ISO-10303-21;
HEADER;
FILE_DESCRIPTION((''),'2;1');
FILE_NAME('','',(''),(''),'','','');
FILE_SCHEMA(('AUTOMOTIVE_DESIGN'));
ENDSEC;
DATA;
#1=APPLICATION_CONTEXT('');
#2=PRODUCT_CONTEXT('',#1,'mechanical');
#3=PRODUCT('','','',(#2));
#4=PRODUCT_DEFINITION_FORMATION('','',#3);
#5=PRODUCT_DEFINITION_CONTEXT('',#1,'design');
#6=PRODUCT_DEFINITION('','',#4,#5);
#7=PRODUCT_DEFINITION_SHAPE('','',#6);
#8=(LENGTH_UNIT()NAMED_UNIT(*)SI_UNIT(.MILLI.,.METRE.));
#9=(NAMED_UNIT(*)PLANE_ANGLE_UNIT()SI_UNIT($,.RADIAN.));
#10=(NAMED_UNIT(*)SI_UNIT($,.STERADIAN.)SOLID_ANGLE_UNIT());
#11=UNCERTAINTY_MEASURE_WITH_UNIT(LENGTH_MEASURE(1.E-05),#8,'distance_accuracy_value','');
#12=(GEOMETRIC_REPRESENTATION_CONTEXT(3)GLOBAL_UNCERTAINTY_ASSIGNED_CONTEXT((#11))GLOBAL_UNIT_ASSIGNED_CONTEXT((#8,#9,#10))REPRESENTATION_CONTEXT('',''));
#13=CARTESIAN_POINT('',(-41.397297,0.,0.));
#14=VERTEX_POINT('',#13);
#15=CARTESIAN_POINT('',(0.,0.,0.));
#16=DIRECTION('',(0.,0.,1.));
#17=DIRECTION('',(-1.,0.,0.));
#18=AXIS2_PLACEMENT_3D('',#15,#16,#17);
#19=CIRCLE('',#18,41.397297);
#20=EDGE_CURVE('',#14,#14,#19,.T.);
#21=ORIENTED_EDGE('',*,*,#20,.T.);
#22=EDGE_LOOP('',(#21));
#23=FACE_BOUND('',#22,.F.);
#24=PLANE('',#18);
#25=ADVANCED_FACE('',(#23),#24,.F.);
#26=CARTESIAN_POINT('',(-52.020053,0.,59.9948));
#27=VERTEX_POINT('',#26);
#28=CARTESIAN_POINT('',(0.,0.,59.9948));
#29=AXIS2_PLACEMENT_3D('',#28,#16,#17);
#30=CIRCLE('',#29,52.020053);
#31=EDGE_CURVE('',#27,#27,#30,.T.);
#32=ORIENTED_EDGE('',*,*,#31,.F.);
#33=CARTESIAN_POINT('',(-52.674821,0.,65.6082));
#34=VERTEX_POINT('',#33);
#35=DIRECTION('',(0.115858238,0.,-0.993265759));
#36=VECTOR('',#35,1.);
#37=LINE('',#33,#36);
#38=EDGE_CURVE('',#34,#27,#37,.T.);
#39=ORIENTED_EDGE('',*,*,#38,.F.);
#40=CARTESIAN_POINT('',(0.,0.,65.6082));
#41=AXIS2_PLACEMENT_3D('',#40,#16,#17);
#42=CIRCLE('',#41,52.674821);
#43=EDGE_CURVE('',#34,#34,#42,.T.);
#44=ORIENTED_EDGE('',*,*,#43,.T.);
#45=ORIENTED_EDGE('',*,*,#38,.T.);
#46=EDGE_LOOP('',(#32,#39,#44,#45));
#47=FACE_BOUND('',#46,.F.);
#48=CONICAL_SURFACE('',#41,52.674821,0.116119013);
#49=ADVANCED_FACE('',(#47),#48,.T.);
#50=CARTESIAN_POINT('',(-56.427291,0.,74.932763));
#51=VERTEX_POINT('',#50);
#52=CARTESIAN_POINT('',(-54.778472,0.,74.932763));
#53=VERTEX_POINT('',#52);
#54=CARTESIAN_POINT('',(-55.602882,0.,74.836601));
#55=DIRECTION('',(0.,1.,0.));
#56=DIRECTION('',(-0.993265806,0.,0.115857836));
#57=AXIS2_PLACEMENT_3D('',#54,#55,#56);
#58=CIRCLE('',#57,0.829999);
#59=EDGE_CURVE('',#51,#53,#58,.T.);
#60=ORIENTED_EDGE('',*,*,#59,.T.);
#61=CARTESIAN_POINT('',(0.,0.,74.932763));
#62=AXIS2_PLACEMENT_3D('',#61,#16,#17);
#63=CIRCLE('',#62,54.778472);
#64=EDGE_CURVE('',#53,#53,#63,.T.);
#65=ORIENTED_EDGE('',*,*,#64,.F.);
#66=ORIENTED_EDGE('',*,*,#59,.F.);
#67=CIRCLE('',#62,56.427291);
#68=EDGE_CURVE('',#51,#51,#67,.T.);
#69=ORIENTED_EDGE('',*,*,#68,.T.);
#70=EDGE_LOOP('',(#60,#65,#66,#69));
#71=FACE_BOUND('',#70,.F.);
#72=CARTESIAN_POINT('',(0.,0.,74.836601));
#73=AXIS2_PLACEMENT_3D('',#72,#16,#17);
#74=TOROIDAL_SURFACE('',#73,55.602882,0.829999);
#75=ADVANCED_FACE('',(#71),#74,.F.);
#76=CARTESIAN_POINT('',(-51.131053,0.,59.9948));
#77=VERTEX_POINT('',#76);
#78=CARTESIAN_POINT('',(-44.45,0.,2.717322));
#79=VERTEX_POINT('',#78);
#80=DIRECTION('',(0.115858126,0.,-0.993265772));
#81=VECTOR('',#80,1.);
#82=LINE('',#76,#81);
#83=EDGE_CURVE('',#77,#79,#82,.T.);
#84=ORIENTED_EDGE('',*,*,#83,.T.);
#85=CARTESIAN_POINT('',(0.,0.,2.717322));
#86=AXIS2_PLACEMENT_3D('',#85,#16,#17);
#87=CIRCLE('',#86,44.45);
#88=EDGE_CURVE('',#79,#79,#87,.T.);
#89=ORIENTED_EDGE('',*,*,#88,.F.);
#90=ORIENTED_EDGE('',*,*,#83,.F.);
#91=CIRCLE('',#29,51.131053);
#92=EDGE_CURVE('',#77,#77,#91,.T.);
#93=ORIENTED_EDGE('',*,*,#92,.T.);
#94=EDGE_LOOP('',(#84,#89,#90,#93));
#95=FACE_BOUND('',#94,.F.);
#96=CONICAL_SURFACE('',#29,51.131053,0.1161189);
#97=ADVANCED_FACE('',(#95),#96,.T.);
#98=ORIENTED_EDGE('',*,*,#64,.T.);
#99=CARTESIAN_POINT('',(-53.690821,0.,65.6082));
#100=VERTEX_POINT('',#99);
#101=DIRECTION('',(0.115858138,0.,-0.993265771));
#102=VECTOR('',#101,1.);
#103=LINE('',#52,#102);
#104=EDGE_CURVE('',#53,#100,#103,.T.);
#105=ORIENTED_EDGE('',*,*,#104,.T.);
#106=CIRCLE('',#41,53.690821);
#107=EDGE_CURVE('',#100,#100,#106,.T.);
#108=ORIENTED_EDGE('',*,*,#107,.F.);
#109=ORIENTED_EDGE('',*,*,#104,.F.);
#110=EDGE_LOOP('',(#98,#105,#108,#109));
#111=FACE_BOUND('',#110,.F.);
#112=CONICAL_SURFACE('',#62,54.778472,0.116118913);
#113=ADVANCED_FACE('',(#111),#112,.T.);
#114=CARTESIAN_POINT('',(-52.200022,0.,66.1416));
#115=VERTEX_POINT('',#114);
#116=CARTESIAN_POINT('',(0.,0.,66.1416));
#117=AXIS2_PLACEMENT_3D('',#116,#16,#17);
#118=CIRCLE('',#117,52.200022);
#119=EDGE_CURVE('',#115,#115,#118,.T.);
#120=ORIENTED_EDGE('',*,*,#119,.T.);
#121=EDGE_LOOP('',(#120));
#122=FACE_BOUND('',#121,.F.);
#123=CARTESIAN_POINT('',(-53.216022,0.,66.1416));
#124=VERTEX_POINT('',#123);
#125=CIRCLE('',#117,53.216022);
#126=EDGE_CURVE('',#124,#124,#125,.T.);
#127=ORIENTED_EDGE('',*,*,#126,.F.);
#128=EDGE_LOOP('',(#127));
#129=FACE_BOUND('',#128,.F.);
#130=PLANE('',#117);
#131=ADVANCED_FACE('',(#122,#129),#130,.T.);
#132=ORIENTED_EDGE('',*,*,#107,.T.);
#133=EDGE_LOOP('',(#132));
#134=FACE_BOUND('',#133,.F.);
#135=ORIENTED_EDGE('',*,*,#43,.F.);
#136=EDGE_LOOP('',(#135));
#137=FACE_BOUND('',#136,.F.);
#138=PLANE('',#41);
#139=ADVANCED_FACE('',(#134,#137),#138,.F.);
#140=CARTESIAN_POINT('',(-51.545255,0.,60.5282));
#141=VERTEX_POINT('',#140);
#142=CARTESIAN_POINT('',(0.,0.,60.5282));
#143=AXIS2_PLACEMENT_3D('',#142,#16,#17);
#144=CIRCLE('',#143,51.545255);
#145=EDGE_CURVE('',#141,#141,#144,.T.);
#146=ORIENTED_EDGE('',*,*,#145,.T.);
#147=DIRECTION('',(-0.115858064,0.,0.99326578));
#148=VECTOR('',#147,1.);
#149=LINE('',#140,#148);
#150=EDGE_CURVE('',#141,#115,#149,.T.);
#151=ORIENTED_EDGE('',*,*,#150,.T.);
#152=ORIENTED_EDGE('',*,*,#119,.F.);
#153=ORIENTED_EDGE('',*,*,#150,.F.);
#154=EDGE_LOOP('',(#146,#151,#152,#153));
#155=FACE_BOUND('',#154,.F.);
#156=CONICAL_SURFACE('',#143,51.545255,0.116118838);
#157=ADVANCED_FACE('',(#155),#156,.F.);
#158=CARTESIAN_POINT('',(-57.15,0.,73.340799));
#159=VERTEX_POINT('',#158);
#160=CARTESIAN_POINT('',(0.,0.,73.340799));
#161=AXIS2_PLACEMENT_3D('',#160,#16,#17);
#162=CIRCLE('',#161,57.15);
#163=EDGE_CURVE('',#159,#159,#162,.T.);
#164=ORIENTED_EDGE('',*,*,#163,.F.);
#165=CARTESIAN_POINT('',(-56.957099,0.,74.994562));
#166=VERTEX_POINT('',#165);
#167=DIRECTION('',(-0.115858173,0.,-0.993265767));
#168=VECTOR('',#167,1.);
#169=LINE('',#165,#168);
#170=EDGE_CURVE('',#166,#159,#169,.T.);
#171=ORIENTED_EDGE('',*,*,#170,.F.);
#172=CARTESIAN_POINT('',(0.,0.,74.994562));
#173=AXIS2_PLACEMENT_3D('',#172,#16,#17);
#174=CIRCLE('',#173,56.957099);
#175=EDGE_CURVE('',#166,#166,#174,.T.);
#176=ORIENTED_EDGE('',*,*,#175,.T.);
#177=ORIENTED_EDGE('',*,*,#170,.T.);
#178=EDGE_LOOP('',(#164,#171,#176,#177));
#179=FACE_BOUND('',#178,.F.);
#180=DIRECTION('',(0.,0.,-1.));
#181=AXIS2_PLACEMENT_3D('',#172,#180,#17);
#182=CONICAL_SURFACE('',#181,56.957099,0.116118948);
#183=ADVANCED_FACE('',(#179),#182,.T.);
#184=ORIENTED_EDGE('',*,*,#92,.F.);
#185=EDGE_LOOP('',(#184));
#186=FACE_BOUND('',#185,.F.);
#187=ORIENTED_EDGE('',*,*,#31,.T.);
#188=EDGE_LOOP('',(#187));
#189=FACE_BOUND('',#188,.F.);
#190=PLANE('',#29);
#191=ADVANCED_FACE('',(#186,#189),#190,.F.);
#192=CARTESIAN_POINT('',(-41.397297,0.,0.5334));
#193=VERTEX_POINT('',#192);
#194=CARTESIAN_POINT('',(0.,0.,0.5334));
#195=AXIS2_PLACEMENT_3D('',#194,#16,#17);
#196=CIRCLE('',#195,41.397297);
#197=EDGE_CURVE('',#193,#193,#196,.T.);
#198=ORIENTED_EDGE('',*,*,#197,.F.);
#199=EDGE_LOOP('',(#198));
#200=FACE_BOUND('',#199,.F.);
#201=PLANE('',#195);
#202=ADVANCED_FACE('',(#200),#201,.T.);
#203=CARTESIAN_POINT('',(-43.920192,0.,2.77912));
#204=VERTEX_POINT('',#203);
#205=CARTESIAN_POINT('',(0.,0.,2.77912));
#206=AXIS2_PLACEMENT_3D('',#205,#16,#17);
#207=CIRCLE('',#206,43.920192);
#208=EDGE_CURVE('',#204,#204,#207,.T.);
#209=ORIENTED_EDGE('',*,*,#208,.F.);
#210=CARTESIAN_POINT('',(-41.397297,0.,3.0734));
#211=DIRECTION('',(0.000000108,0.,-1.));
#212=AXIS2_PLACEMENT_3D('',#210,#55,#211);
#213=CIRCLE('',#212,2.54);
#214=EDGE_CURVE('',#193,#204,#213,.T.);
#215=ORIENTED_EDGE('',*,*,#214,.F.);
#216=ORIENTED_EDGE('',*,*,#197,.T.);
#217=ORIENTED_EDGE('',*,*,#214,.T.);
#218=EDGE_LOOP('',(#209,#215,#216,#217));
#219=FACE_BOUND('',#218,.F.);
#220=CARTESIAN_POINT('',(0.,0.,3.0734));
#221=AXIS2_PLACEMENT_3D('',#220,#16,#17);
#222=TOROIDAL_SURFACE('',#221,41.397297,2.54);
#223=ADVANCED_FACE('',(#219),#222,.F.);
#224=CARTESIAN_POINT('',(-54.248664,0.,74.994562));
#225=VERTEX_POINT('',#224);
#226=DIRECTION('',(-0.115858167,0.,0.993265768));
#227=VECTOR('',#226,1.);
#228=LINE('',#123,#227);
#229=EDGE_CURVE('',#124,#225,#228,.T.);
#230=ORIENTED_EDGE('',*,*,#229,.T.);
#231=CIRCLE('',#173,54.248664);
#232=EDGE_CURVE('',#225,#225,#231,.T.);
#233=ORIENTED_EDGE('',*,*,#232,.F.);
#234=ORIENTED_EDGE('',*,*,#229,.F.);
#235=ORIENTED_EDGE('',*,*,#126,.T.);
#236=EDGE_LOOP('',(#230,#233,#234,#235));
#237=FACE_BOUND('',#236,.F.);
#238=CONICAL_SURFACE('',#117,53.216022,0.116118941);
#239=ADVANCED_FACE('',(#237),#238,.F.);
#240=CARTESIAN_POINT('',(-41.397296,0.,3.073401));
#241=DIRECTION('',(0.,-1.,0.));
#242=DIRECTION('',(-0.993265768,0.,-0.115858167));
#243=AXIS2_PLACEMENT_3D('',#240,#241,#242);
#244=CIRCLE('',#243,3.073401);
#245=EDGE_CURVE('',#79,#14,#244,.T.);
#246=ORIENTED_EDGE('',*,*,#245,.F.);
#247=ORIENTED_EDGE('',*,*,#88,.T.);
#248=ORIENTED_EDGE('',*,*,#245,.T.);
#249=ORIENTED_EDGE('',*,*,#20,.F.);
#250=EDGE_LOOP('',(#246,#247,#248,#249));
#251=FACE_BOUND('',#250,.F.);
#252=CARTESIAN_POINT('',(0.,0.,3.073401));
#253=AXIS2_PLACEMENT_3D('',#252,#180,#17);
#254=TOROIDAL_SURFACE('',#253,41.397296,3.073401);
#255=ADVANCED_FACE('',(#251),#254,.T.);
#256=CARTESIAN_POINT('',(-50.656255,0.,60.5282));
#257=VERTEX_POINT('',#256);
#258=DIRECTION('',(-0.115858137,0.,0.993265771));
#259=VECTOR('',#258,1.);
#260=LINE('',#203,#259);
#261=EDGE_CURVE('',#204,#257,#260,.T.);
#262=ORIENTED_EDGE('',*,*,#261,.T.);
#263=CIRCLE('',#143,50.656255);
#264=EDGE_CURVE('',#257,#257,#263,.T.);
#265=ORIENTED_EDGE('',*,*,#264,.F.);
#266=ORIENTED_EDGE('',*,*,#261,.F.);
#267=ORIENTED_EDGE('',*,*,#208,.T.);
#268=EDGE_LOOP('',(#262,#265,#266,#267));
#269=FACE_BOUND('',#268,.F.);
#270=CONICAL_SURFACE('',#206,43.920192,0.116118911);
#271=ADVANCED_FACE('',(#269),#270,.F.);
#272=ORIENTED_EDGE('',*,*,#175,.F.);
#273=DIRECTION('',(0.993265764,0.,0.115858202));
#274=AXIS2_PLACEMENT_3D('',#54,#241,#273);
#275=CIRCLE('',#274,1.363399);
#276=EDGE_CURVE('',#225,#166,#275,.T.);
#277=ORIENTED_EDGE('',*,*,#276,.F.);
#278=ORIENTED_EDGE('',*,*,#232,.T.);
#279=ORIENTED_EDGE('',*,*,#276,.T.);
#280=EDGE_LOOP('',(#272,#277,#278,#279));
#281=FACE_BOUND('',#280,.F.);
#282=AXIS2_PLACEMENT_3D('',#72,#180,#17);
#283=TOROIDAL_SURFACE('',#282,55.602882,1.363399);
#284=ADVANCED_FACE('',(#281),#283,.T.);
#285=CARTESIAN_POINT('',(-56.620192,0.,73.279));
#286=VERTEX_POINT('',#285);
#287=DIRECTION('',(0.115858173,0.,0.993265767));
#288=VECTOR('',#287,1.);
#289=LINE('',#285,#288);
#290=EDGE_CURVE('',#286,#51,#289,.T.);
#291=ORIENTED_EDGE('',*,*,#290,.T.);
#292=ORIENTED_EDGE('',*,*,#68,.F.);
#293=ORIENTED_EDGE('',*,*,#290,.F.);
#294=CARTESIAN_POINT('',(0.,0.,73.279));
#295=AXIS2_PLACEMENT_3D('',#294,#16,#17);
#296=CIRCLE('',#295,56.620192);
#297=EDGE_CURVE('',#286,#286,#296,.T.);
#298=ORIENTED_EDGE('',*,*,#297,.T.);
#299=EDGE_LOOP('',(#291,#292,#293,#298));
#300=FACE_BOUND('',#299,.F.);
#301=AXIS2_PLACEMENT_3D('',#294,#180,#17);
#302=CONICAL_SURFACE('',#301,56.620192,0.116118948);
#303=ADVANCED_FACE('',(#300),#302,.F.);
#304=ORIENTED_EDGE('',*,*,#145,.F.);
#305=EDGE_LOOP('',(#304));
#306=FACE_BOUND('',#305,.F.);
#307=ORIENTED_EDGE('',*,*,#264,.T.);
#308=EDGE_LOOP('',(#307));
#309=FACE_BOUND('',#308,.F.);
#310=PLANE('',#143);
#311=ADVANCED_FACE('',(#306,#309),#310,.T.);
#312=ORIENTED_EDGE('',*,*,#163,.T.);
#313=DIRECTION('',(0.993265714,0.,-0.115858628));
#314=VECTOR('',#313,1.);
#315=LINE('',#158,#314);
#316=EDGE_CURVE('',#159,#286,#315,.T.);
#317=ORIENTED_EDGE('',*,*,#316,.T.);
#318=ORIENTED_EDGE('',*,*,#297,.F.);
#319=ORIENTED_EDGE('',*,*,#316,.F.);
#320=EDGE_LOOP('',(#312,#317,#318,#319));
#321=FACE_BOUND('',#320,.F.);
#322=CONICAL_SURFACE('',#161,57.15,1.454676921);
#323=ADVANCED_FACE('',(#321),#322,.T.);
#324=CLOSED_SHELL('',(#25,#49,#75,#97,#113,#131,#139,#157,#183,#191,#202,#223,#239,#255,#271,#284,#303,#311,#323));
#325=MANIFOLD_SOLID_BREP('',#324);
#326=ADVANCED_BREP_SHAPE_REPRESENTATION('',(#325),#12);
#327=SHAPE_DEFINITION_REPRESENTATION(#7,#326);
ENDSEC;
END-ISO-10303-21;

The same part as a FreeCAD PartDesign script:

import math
import FreeCAD as App
import Part
import Sketcher

V = App.Vector
Q = App.Units.Quantity

doc = App.newDocument("Part")
params = doc.addObject("Spreadsheet::Sheet", "Params")
for row, (alias, value) in enumerate([
    ("sketch1_radius", "0.1 in"),
    ("sketch1_radius2", "0.121 in"),
    ("sketch1_width", "0.04 in"),
    ("sketch1_width2", "0.035 in"),
    ("revolution_angle", "360 deg"),
], start=1):
    params.set(f"A{row}", alias)
    params.set(f"B{row}", "=" + value)
    params.setAlias(f"B{row}", alias)

body = doc.addObject("PartDesign::Body", "Body")

sketch1 = doc.addObject("Sketcher::SketchObject", "Sketch")
body.addObject(sketch1)
sketch1.AttachmentSupport = (doc.XZ_Plane, [""])
sketch1.MapMode = "FlatFace"
sketch1.addGeometry(Part.LineSegment(V(-41.397297, 0, 0), V(0, 0, 0)), False)
sketch1.addGeometry(Part.LineSegment(V(0, 0, 0), V(0, 0.5334, 0)), False)
sketch1.addGeometry(Part.LineSegment(V(0, 0.5334, 0), V(-41.397297, 0.5334, 0)), False)
sketch1.addGeometry(Part.ArcOfCircle(Part.Circle(V(-41.397297, 3.0734, 0), V(0, 0, 1), 2.54), math.radians(-173.346876), math.radians(-89.999994)), False)
sketch1.addGeometry(Part.LineSegment(V(-43.920192, 2.77912, 0), V(-50.656255, 60.5282, 0)), False)
sketch1.addGeometry(Part.LineSegment(V(-50.656255, 60.5282, 0), V(-51.545255, 60.5282, 0)), False)
sketch1.addGeometry(Part.LineSegment(V(-51.545255, 60.5282, 0), V(-52.200022, 66.1416, 0)), False)
sketch1.addGeometry(Part.LineSegment(V(-52.200022, 66.1416, 0), V(-53.216022, 66.1416, 0)), False)
sketch1.addGeometry(Part.LineSegment(V(-53.216022, 66.1416, 0), V(-54.248664, 74.994562, 0)), False)
sketch1.addGeometry(Part.ArcOfCircle(Part.Circle(V(-55.602882, 74.836601, 0), V(0, 0, 1), 1.363399), math.radians(6.653127), math.radians(173.346873)), False)
sketch1.addGeometry(Part.LineSegment(V(-56.957099, 74.994562, 0), V(-57.15, 73.340799, 0)), False)
sketch1.addGeometry(Part.LineSegment(V(-57.15, 73.340799, 0), V(-56.620192, 73.279, 0)), False)
sketch1.addGeometry(Part.LineSegment(V(-56.620192, 73.279, 0), V(-56.427291, 74.932763, 0)), False)
sketch1.addGeometry(Part.ArcOfCircle(Part.Circle(V(-55.602882, 74.836601, 0), V(0, 0, 1), 0.829999), math.radians(6.653106), math.radians(173.346894)), False)
sketch1.addGeometry(Part.LineSegment(V(-54.778472, 74.932763, 0), V(-53.690821, 65.6082, 0)), False)
sketch1.addGeometry(Part.LineSegment(V(-53.690821, 65.6082, 0), V(-52.674821, 65.6082, 0)), False)
sketch1.addGeometry(Part.LineSegment(V(-52.674821, 65.6082, 0), V(-52.020053, 59.9948, 0)), False)
sketch1.addGeometry(Part.LineSegment(V(-52.020053, 59.9948, 0), V(-51.131053, 59.9948, 0)), False)
sketch1.addGeometry(Part.LineSegment(V(-51.131053, 59.9948, 0), V(-44.45, 2.717322, 0)), False)
sketch1.addGeometry(Part.ArcOfCircle(Part.Circle(V(-41.397296, 3.073401, 0), V(0, 0, 1), 3.073401), math.radians(-173.346875), math.radians(-90.00001)), False)
sketch1.addConstraint(Sketcher.Constraint("Coincident", 0, 2, 1, 1))
sketch1.addConstraint(Sketcher.Constraint("Coincident", 1, 2, 2, 1))
sketch1.addConstraint(Sketcher.Constraint("Tangent", 2, 2, 3, 2))
sketch1.addConstraint(Sketcher.Constraint("Tangent", 3, 1, 4, 1))
sketch1.addConstraint(Sketcher.Constraint("Coincident", 4, 2, 5, 1))
sketch1.addConstraint(Sketcher.Constraint("Coincident", 5, 2, 6, 1))
sketch1.addConstraint(Sketcher.Constraint("Coincident", 6, 2, 7, 1))
sketch1.addConstraint(Sketcher.Constraint("Coincident", 7, 2, 8, 1))
sketch1.addConstraint(Sketcher.Constraint("Tangent", 8, 2, 9, 1))
sketch1.addConstraint(Sketcher.Constraint("Tangent", 9, 2, 10, 1))
sketch1.addConstraint(Sketcher.Constraint("Coincident", 10, 2, 11, 1))
sketch1.addConstraint(Sketcher.Constraint("Coincident", 11, 2, 12, 1))
sketch1.addConstraint(Sketcher.Constraint("Tangent", 12, 2, 13, 2))
sketch1.addConstraint(Sketcher.Constraint("Tangent", 13, 1, 14, 1))
sketch1.addConstraint(Sketcher.Constraint("Coincident", 14, 2, 15, 1))
sketch1.addConstraint(Sketcher.Constraint("Coincident", 15, 2, 16, 1))
sketch1.addConstraint(Sketcher.Constraint("Coincident", 16, 2, 17, 1))
sketch1.addConstraint(Sketcher.Constraint("Coincident", 17, 2, 18, 1))
sketch1.addConstraint(Sketcher.Constraint("Tangent", 18, 2, 19, 1))
sketch1.addConstraint(Sketcher.Constraint("Tangent", 19, 2, 0, 1))
sketch1.addConstraint(Sketcher.Constraint("Horizontal", 0))
sketch1.addConstraint(Sketcher.Constraint("Vertical", 1))
sketch1.addConstraint(Sketcher.Constraint("Horizontal", 2))
sketch1.addConstraint(Sketcher.Constraint("Horizontal", 5))
sketch1.addConstraint(Sketcher.Constraint("Horizontal", 7))
sketch1.addConstraint(Sketcher.Constraint("Horizontal", 15))
sketch1.addConstraint(Sketcher.Constraint("Horizontal", 17))
sketch1.addConstraint(Sketcher.Constraint("Coincident", 0, 2, -1, 1))
sketch1.addConstraint(Sketcher.Constraint("Coincident", 13, 3, 9, 3))
sketch1.addConstraint(Sketcher.Constraint("Coincident", 19, 3, 3, 3))
sketch1.addConstraint(Sketcher.Constraint("Parallel", 4, 6))
sketch1.addConstraint(Sketcher.Constraint("Parallel", 6, 8))
sketch1.addConstraint(Sketcher.Constraint("Perpendicular", 10, 11))
sketch1.addConstraint(Sketcher.Constraint("Perpendicular", 11, 12))
sketch1.addConstraint(Sketcher.Constraint("Parallel", 8, 14))
sketch1.addConstraint(Sketcher.Constraint("Parallel", 14, 16))
sketch1.addConstraint(Sketcher.Constraint("Parallel", 16, 18))
sketch1.addConstraint(Sketcher.Constraint("Horizontal", 8, 2, 9, 2))
sketch1.addConstraint(Sketcher.Constraint("Equal", 7, 15))
sketch1.addConstraint(Sketcher.Constraint("Equal", 5, 17))
sketch1.addConstraint(Sketcher.Constraint("Equal", 6, 16))
sketch1.addConstraint(Sketcher.Constraint("Radius", 3, Q("0.1 in")))
sketch1.addConstraint(Sketcher.Constraint("Radius", 19, Q("0.121 in")))
sketch1.addConstraint(Sketcher.Constraint("DistanceX", 7, 2, 7, 1, Q("0.04 in")))
sketch1.addConstraint(Sketcher.Constraint("DistanceY", 5, 2, 14, 2, Q("0.2 in")))
sketch1.addConstraint(Sketcher.Constraint("DistanceX", 5, 2, 5, 1, Q("0.035 in")))
sketch1.addConstraint(Sketcher.Constraint("DistanceX", 10, 2, -1, 1, Q("2.25 in")))
sketch1.addConstraint(Sketcher.Constraint("DistanceX", 18, 2, -1, 1, Q("1.75 in")))
sketch1.addConstraint(Sketcher.Constraint("Radius", 9, Q("1.363399 mm")))
sketch1.addConstraint(Sketcher.Constraint("DistanceY", -1, 1, 4, 2, Q("2.383 in")))
sketch1.addConstraint(Sketcher.Constraint("DistanceY", -1, 1, 6, 2, Q("2.604 in")))
sketch1.addConstraint(Sketcher.Constraint("DistanceY", -1, 1, 11, 2, Q("2.885 in")))
sketch1.addConstraint(Sketcher.Constraint("DistanceY", -1, 1, 9, 3, Q("74.836601 mm")))
sketch1.setExpression("Constraints[41]", "Params.sketch1_radius")
sketch1.setExpression("Constraints[42]", "Params.sketch1_radius2")
sketch1.setExpression("Constraints[43]", "Params.sketch1_width")
sketch1.setExpression("Constraints[45]", "Params.sketch1_width2")
revolution = doc.addObject("PartDesign::Revolution", "Revolution")
body.addObject(revolution)
revolution.Profile = sketch1
revolution.ReferenceAxis = (sketch1, ["V_Axis"])
revolution.setExpression("Angle", "Params.revolution_angle")

doc.recompute()
